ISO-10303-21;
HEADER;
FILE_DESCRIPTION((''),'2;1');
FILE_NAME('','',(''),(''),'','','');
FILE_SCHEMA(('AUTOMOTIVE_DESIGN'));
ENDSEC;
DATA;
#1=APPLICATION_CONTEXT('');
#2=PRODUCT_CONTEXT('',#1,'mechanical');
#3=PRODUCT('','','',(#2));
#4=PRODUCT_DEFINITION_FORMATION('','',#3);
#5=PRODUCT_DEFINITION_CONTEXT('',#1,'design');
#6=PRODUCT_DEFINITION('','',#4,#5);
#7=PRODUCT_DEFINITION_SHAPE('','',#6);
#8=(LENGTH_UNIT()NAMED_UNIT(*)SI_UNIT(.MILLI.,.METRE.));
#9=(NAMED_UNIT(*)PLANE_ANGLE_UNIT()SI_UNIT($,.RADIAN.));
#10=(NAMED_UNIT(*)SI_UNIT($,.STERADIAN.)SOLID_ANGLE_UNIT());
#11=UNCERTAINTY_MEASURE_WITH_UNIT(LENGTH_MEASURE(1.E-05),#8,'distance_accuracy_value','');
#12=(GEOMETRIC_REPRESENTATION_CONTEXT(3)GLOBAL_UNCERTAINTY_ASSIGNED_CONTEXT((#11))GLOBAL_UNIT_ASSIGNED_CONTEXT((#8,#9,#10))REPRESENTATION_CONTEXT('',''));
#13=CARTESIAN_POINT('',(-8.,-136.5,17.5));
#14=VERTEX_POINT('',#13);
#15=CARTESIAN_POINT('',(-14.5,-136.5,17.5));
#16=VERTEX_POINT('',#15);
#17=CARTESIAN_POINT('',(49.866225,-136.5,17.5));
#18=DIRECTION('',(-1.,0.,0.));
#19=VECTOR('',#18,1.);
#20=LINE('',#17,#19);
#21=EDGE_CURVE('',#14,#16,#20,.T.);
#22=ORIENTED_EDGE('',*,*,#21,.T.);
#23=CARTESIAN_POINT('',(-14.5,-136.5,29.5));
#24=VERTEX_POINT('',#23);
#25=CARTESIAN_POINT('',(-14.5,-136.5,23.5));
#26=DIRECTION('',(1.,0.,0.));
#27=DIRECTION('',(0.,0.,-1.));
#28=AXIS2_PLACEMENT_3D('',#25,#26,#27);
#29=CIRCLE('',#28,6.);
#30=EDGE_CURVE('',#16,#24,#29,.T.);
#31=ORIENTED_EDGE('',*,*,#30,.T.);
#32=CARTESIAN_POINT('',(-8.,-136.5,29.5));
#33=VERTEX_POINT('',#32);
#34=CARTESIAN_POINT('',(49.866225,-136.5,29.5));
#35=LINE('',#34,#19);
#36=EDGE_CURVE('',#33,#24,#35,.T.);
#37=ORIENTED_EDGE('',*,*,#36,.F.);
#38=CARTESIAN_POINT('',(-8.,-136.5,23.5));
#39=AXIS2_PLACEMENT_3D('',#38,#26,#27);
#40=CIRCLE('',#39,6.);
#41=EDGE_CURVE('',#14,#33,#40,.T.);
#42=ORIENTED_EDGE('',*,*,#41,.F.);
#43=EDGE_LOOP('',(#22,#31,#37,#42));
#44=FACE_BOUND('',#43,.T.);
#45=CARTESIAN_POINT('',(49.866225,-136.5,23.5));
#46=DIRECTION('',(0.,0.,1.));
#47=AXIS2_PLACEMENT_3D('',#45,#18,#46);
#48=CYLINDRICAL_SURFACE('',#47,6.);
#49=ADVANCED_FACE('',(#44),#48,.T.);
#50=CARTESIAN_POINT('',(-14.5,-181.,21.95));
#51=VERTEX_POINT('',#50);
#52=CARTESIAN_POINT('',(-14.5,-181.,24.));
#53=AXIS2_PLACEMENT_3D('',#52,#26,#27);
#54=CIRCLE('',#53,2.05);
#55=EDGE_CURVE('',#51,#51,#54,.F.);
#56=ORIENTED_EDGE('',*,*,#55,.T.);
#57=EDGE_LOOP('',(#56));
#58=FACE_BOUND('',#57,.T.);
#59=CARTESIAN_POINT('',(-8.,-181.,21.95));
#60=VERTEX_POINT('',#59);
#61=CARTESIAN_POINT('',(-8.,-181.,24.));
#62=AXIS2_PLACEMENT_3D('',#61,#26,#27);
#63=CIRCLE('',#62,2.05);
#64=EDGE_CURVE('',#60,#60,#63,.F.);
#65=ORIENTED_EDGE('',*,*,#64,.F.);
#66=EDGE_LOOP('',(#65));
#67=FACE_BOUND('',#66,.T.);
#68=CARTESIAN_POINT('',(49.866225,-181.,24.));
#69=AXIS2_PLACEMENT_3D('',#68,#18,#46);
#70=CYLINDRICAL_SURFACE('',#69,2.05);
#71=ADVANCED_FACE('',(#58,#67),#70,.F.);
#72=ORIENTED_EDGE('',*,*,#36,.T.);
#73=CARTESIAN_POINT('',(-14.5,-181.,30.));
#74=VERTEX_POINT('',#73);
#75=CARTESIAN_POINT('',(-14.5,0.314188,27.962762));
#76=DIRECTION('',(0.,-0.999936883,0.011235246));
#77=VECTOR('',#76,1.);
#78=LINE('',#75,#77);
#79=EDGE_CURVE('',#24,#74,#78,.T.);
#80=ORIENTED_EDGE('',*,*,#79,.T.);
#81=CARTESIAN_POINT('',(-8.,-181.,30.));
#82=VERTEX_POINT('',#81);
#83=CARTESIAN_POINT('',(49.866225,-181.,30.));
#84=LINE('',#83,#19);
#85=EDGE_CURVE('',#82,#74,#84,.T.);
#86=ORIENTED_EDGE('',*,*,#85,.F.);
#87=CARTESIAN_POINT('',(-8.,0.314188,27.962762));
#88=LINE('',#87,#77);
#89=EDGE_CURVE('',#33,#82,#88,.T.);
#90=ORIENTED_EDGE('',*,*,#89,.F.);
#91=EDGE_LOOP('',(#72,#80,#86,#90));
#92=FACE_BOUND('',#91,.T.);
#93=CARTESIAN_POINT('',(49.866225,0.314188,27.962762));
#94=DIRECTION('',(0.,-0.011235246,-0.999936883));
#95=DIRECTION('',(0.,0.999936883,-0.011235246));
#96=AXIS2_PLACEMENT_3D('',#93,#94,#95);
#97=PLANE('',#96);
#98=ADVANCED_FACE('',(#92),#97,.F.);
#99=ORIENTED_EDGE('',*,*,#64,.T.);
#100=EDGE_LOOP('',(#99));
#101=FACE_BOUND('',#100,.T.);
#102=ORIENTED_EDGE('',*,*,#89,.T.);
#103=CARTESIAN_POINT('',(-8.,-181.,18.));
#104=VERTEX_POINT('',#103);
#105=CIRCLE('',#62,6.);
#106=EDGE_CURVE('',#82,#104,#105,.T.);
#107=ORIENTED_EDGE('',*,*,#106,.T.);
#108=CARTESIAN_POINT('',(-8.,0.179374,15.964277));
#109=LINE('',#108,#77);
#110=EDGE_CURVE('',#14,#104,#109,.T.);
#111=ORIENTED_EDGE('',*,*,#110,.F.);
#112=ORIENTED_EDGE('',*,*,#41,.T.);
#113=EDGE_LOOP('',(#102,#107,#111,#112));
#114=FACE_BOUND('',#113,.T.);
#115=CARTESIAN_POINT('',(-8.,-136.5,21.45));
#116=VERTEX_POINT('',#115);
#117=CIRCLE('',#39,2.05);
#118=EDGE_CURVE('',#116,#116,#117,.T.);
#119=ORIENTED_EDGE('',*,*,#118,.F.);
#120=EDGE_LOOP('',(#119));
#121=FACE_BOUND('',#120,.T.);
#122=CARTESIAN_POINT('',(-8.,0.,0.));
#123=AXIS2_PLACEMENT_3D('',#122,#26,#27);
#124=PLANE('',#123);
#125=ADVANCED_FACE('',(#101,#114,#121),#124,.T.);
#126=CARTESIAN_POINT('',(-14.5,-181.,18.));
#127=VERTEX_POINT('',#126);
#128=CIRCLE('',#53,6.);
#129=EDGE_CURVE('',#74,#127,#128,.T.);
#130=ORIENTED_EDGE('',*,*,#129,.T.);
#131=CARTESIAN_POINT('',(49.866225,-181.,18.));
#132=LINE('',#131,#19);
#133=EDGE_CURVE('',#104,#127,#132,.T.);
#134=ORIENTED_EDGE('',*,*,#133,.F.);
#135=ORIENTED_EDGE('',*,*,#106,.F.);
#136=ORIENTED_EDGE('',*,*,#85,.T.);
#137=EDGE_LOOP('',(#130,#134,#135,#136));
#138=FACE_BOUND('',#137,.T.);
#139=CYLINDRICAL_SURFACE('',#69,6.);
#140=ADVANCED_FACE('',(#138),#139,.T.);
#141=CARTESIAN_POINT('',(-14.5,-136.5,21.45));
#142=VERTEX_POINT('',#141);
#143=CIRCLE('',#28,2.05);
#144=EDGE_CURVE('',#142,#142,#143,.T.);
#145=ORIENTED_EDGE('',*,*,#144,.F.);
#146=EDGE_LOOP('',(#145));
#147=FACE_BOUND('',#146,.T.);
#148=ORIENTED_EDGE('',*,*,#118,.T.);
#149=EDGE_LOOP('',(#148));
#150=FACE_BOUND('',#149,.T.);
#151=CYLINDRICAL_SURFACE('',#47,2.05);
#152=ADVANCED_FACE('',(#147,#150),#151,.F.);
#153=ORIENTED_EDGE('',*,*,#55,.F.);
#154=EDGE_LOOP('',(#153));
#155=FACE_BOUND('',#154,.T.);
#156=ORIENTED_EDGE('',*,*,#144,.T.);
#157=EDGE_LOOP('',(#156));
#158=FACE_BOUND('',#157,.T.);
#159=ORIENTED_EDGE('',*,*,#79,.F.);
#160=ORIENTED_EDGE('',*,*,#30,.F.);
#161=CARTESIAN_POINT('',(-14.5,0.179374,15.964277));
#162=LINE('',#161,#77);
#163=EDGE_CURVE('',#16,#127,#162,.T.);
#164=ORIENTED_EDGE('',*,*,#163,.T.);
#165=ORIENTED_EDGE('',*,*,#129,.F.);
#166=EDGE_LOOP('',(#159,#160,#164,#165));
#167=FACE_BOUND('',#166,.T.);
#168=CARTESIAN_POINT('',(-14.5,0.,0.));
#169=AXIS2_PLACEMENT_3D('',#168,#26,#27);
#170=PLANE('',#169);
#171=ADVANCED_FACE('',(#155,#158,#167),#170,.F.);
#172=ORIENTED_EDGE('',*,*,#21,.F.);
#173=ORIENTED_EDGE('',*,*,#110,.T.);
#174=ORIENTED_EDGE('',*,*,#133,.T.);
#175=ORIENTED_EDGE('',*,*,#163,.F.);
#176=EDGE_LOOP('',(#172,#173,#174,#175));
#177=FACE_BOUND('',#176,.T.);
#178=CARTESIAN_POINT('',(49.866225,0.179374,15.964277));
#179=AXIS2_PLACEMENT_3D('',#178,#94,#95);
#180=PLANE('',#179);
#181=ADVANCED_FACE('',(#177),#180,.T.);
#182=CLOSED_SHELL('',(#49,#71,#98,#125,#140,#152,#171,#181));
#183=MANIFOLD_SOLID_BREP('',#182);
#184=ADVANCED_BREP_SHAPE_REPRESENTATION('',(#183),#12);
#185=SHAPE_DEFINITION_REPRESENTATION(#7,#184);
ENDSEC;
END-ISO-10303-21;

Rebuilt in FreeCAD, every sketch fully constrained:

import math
import FreeCAD as App
import Part
import Sketcher

doc = App.newDocument("Part")
body = doc.addObject("PartDesign::Body", "Body")

sketch1 = body.newObject("Sketcher::SketchObject", "Sketch")
sketch1.AttachmentSupport = (doc.getObject("YZ_Plane"), [""])
sketch1.MapMode = "FlatFace"
sketch1.AttachmentOffset = App.Placement(App.Vector(0, 0, -14.5), App.Rotation())
sketch1.addGeometry(Part.ArcOfCircle(Part.Circle(App.Vector(-136.5, 23.5, 0), App.Vector(0, 0, 1), 6), math.radians(-90), math.radians(90)), False)
sketch1.addGeometry(Part.LineSegment(App.Vector(-136.5, 29.5, 0), App.Vector(-181, 30, 0)), False)
sketch1.addGeometry(Part.ArcOfCircle(Part.Circle(App.Vector(-181, 24, 0), App.Vector(0, 0, 1), 6), math.radians(90), math.radians(204)), False)
sketch1.addGeometry(Part.ArcOfCircle(Part.Circle(App.Vector(-181, 24, 0), App.Vector(0, 0, 1), 6), math.radians(-156), math.radians(-90)), False)
sketch1.addGeometry(Part.LineSegment(App.Vector(-181, 18, 0), App.Vector(-175.5, 17.9, 0)), False)
sketch1.addGeometry(Part.LineSegment(App.Vector(-175.5, 17.9, 0), App.Vector(-136.5, 17.5, 0)), False)
sketch1.addGeometry(Part.Circle(App.Vector(-181, 24, 0), App.Vector(0, 0, 1), 2), False)
sketch1.addGeometry(Part.Circle(App.Vector(-136.5, 23.5, 0), App.Vector(0, 0, 1), 2), False)
sketch1.addConstraint(Sketcher.Constraint("Coincident", 0, 2, 1, 1))
sketch1.addConstraint(Sketcher.Constraint("Coincident", 1, 2, 2, 1))
sketch1.addConstraint(Sketcher.Constraint("Tangent", 2, 2, 3, 1))
sketch1.addConstraint(Sketcher.Constraint("Coincident", 3, 2, 4, 1))
sketch1.addConstraint(Sketcher.Constraint("Coincident", 4, 2, 5, 1))
sketch1.addConstraint(Sketcher.Constraint("Coincident", 5, 2, 0, 1))
sketch1.addConstraint(Sketcher.Constraint("Coincident", 6, 3, 2, 3))
sketch1.addConstraint(Sketcher.Constraint("Coincident", 7, 3, 0, 3))
sketch1.addConstraint(Sketcher.Constraint("Equal", 0, 2))
sketch1.addConstraint(Sketcher.Constraint("Equal", 2, 3))
sketch1.addConstraint(Sketcher.Constraint("Equal", 6, 7))
sketch1.addConstraint(Sketcher.Constraint("Parallel", 1, 4))
sketch1.addConstraint(Sketcher.Constraint("Parallel", 4, 5))
sketch1.addConstraint(Sketcher.Constraint("Vertical", 7, 3, 0, 2))
sketch1.addConstraint(Sketcher.Constraint("Vertical", 6, 3, 1, 2))
sketch1.addConstraint(Sketcher.Constraint("Vertical", 1, 2, 3, 2))
sketch1.addConstraint(Sketcher.Constraint("Radius", 0, 6.0))
sketch1.addConstraint(Sketcher.Constraint("Diameter", 6, 4.1))
sketch1.addConstraint(Sketcher.Constraint("DistanceX", 2, 3, -1, 1, 181.0))
sketch1.addConstraint(Sketcher.Constraint("DistanceY", -1, 1, 2, 3, 24.0))
sketch1.addConstraint(Sketcher.Constraint("DistanceX", 2, 2, 0, 3, 50.0))
sketch1.addConstraint(Sketcher.Constraint("DistanceX", 2, 2, 4, 2, 11.0))
sketch1.addConstraint(Sketcher.Constraint("DistanceX", 0, 3, -1, 1, 136.5))
sketch1.addConstraint(Sketcher.Constraint("DistanceY", -1, 1, 0, 3, 23.5))
pad1 = body.newObject("PartDesign::Pad", "Pad")
pad1.Profile = sketch1
pad1.Length = 6.5

doc.recompute()
